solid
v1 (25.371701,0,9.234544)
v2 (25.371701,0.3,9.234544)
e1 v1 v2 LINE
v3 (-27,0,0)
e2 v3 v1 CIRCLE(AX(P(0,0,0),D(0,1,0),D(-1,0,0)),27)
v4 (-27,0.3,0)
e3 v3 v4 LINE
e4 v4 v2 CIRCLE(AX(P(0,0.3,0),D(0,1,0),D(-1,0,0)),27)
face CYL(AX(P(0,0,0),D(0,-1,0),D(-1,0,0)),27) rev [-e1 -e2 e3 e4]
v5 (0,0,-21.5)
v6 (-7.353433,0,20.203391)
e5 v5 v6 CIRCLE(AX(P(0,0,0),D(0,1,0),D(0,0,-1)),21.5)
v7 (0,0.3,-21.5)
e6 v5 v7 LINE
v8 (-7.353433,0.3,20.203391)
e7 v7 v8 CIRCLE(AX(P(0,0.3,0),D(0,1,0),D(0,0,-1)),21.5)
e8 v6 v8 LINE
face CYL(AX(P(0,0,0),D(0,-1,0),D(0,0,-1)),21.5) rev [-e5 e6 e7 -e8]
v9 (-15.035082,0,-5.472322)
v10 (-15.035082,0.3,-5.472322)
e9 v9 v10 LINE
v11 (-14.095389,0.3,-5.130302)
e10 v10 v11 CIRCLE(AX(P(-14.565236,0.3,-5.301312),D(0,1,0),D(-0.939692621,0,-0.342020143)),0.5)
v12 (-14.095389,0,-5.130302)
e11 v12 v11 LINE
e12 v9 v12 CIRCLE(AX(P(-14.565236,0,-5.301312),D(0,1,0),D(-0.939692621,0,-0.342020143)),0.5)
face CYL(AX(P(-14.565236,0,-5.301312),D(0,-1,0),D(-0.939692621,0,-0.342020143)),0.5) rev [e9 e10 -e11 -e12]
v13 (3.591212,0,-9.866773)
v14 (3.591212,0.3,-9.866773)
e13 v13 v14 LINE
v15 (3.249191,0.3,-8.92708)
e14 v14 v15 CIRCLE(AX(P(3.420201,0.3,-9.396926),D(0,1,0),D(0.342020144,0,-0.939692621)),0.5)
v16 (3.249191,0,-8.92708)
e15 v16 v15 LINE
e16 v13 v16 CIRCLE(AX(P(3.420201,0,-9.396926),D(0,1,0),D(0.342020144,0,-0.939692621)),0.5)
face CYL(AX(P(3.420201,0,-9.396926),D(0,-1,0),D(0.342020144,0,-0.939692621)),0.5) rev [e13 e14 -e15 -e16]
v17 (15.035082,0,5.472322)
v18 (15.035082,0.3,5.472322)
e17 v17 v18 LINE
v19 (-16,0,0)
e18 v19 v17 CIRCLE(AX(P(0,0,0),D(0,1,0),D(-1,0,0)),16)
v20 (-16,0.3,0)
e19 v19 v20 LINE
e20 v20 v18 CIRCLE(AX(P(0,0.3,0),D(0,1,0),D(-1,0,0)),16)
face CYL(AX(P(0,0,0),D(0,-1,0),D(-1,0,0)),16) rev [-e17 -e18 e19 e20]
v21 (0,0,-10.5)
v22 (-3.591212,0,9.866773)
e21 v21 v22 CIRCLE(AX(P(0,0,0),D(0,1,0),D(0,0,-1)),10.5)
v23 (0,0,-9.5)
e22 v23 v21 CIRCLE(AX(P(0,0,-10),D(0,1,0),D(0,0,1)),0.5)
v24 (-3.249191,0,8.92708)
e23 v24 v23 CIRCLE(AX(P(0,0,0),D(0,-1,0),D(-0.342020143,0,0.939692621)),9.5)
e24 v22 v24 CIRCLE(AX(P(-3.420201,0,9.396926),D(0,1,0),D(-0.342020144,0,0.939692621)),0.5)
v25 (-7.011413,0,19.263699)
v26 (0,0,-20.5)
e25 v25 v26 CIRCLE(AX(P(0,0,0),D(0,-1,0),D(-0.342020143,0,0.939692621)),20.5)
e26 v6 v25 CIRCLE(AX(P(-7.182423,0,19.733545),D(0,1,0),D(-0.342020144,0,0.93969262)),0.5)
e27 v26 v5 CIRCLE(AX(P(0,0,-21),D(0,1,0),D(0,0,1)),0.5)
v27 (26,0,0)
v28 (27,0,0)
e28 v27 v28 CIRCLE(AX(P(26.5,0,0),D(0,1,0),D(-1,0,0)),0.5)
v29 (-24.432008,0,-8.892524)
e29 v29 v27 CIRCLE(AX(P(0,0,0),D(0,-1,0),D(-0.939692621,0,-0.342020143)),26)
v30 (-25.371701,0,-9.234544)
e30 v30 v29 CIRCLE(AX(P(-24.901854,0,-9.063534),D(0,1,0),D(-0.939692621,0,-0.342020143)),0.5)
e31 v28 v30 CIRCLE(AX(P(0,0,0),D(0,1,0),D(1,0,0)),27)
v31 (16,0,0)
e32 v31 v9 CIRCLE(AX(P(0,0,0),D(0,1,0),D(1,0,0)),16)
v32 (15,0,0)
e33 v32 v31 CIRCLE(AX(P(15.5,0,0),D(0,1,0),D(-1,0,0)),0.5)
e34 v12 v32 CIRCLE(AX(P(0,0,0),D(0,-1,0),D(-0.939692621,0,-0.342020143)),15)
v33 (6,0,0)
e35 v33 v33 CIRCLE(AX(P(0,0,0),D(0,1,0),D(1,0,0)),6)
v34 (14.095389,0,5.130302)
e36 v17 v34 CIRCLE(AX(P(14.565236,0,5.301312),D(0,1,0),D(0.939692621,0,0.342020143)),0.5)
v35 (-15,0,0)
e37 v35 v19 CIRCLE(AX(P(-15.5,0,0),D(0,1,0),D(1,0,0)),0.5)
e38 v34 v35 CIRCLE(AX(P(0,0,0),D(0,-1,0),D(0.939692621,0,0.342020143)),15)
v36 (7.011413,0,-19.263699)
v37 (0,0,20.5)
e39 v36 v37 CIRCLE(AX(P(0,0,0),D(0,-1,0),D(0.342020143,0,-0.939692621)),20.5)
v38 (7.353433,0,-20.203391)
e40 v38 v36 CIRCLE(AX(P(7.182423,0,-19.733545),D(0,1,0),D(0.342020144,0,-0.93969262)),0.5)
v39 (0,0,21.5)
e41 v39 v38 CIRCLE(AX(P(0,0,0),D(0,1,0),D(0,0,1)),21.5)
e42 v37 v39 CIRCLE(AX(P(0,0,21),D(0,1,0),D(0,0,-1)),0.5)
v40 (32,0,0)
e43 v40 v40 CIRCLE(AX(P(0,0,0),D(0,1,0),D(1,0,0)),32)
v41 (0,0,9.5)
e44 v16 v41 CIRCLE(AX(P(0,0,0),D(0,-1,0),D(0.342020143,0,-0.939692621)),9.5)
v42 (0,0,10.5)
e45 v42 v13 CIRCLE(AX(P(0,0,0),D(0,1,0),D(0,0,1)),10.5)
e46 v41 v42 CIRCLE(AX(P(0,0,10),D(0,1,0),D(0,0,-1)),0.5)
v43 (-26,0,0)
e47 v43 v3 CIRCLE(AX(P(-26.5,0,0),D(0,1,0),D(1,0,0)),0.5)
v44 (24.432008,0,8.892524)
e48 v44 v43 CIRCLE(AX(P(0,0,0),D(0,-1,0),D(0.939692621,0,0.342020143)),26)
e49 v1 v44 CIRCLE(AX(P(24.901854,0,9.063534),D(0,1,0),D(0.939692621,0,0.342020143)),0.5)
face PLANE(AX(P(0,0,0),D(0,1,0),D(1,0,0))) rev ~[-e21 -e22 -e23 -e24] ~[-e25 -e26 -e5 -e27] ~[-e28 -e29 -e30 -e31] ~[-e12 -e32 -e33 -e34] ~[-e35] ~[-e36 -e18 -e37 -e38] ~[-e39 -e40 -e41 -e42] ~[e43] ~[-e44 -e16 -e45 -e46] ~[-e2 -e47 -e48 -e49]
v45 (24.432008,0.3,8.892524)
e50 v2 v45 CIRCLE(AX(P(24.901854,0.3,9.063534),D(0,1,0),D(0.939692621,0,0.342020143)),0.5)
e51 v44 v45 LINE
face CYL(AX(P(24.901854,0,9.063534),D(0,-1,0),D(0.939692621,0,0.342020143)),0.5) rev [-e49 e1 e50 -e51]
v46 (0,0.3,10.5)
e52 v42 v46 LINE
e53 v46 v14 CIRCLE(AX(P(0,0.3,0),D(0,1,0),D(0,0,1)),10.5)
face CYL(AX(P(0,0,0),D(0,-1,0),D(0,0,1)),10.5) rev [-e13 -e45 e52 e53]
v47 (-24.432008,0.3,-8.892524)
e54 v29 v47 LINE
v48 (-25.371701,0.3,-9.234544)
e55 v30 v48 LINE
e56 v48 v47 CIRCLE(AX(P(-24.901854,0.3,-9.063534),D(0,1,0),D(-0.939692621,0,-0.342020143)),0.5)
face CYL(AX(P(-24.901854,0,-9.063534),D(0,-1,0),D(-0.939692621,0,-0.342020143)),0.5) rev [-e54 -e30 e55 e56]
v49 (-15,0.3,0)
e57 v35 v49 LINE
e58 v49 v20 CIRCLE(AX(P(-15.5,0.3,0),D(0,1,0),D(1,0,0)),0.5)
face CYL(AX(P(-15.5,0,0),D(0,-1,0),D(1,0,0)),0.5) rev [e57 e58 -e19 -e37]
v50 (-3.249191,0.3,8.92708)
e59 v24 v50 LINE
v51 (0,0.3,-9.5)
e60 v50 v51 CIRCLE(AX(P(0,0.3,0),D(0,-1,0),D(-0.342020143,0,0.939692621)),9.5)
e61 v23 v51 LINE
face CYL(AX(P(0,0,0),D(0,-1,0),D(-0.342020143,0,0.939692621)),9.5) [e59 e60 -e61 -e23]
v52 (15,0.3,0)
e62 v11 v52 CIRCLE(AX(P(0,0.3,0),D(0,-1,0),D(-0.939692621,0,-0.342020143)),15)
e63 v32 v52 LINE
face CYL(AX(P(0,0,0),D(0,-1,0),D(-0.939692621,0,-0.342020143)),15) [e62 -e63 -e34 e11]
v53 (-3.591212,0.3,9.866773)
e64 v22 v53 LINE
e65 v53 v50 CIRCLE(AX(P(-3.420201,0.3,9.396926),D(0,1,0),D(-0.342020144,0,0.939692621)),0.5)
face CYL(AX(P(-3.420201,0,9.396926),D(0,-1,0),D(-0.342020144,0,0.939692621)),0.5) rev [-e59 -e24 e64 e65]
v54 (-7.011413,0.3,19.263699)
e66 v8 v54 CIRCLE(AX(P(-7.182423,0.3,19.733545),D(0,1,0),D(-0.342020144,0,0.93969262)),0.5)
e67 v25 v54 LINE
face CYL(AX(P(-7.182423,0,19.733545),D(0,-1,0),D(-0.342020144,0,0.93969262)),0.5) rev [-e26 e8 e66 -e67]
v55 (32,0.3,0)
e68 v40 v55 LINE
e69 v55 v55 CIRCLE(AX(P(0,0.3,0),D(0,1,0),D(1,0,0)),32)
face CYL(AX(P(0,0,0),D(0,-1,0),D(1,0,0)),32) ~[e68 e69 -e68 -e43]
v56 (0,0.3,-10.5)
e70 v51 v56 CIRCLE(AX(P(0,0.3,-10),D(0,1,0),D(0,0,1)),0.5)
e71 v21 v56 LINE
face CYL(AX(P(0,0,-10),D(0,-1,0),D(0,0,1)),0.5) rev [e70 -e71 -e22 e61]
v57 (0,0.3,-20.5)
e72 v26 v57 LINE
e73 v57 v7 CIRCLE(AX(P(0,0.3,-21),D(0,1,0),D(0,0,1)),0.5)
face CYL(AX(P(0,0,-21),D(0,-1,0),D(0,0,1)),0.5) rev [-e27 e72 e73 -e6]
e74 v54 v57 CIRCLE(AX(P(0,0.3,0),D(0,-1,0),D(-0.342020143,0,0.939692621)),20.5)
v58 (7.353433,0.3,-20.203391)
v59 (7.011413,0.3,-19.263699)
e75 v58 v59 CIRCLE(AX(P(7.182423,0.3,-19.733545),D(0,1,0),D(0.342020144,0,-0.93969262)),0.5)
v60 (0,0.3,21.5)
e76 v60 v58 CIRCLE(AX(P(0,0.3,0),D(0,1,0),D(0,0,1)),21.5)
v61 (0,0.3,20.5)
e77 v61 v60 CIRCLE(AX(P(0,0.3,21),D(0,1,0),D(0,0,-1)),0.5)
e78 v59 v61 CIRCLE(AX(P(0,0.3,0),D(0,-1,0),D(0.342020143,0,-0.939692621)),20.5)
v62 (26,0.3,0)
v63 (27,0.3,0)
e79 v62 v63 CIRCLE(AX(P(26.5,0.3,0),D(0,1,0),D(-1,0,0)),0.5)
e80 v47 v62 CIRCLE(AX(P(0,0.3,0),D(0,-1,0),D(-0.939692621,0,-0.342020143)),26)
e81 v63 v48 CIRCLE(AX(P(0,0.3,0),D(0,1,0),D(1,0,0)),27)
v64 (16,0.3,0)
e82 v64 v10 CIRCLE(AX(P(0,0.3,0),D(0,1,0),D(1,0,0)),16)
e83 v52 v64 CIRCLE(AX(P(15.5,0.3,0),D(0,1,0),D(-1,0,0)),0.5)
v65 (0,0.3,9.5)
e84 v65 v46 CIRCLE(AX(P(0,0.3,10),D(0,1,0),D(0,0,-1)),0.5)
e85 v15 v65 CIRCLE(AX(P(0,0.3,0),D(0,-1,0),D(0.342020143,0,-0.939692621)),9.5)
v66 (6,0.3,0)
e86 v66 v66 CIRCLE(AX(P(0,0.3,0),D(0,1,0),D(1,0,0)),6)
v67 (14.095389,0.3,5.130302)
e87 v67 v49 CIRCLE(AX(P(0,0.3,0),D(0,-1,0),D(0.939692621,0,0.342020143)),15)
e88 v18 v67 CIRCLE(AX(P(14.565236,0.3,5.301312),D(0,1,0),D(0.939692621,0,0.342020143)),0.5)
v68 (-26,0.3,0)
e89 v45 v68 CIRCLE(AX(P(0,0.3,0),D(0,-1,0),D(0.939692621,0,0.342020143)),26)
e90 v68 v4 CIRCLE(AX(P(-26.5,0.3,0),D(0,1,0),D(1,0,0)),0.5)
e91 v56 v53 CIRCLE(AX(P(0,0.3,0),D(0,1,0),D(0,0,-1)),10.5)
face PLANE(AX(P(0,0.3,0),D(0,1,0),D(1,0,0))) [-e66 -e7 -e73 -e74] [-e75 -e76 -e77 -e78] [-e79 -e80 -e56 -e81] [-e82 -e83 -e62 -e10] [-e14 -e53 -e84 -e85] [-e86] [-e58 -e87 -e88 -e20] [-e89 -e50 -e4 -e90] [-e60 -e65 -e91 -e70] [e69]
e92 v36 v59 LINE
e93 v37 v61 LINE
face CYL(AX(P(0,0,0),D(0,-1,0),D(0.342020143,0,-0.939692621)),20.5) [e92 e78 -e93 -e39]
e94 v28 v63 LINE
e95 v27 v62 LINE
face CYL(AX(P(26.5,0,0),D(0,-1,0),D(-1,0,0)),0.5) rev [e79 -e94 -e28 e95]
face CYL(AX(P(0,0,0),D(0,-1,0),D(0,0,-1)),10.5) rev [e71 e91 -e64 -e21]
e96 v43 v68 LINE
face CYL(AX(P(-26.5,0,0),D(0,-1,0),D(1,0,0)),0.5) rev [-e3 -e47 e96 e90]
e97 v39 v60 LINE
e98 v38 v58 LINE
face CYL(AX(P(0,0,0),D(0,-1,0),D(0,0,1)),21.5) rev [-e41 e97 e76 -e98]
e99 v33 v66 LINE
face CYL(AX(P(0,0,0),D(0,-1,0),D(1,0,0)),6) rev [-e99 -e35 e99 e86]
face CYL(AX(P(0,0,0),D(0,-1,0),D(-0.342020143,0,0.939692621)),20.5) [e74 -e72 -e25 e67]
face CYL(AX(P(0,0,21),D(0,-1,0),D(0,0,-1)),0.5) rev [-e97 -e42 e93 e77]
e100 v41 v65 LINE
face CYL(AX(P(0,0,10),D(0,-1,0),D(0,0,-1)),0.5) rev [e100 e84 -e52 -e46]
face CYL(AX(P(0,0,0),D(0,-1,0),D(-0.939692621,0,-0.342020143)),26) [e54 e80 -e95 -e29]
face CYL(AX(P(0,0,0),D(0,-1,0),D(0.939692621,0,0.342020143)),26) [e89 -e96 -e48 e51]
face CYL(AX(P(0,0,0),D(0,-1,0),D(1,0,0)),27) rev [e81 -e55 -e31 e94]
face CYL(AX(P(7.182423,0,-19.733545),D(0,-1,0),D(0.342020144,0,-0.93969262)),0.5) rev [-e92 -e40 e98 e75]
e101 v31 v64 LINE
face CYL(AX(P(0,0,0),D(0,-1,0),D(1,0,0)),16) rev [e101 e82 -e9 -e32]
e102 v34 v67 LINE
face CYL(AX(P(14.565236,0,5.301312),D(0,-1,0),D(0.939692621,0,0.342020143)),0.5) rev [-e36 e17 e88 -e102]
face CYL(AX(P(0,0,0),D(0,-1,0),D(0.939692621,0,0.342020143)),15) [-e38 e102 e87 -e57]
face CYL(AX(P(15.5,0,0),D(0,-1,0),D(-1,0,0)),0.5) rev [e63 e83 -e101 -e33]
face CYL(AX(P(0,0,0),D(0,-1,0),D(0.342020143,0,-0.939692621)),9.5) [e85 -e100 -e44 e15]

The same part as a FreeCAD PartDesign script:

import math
import FreeCAD as App
import Part
import Sketcher
from FreeCAD import Vector

doc = App.newDocument("Part")
body = doc.addObject("PartDesign::Body", "Body")

# Sketch on XZ plane
sketch1 = body.newObject("Sketcher::SketchObject", "Sketch")
sketch1.AttachmentSupport = (doc.getObject("XZ_Plane"), [""])
sketch1.MapMode = "FlatFace"
sketch1.addGeometry([
    Part.Circle(Vector(0, 0, 0), Vector(0, 0, 1), 32),  # 0
    Part.ArcOfCircle(Part.Circle(Vector(0, 0, 0), Vector(0, 0, 1), 27), math.radians(20), math.radians(180)),  # 1
    Part.ArcOfCircle(Part.Circle(Vector(-26.5, 0, 0), Vector(0, 0, 1), 0.5), math.radians(180), math.radians(360)),  # 2
    Part.ArcOfCircle(Part.Circle(Vector(0, 0, 0), Vector(0, 0, 1), 26), math.radians(20), math.radians(180)),  # 3
    Part.ArcOfCircle(Part.Circle(Vector(24.9, 9.1, 0), Vector(0, 0, 1), 0.5), math.radians(-160), math.radians(20)),  # 4
    Part.ArcOfCircle(Part.Circle(Vector(0, 0, 0), Vector(0, 0, 1), 16), math.radians(20), math.radians(180)),  # 5
    Part.ArcOfCircle(Part.Circle(Vector(-15.5, 0, 0), Vector(0, 0, 1), 0.5), math.radians(180), math.radians(360)),  # 6
    Part.ArcOfCircle(Part.Circle(Vector(0, 0, 0), Vector(0, 0, 1), 15), math.radians(20), math.radians(180)),  # 7
    Part.ArcOfCircle(Part.Circle(Vector(14.6, 5.3, 0), Vector(0, 0, 1), 0.5), math.radians(-160), math.radians(20)),  # 8
    Part.Circle(Vector(0, 0, 0), Vector(0, 0, 1), 6),  # 9
    Part.ArcOfCircle(Part.Circle(Vector(0, 0, 0), Vector(0, 0, 1), 10.5), math.radians(-70), math.radians(90)),  # 10
    Part.ArcOfCircle(Part.Circle(Vector(0, 10, 0), Vector(0, 0, 1), 0.5), math.radians(90), math.radians(270)),  # 11
    Part.ArcOfCircle(Part.Circle(Vector(0, 0, 0), Vector(0, 0, 1), 9.5), math.radians(-70), math.radians(90)),  # 12
    Part.ArcOfCircle(Part.Circle(Vector(3.4, -9.4, 0), Vector(0, 0, 1), 0.5), math.radians(110), math.radians(290)),  # 13
    Part.ArcOfCircle(Part.Circle(Vector(0, 0, 0), Vector(0, 0, 1), 21.5), math.radians(-70), math.radians(90)),  # 14
    Part.ArcOfCircle(Part.Circle(Vector(0, 21, 0), Vector(0, 0, 1), 0.5), math.radians(90), math.radians(270)),  # 15
    Part.ArcOfCircle(Part.Circle(Vector(0, 0, 0), Vector(0, 0, 1), 20.5), math.radians(-70), math.radians(90)),  # 16
    Part.ArcOfCircle(Part.Circle(Vector(7.2, -19.7, 0), Vector(0, 0, 1), 0.5), math.radians(110), math.radians(290)),  # 17
    Part.ArcOfCircle(Part.Circle(Vector(0, 0, 0), Vector(0, 0, 1), 21.5), math.radians(110), math.radians(270)),  # 18
    Part.ArcOfCircle(Part.Circle(Vector(0, -21, 0), Vector(0, 0, 1), 0.5), math.radians(-90), math.radians(90)),  # 19
    Part.ArcOfCircle(Part.Circle(Vector(0, 0, 0), Vector(0, 0, 1), 20.5), math.radians(110), math.radians(270)),  # 20
    Part.ArcOfCircle(Part.Circle(Vector(-7.2, 19.7, 0), Vector(0, 0, 1), 0.5), math.radians(-70), math.radians(110)),  # 21
    Part.ArcOfCircle(Part.Circle(Vector(0, 0, 0), Vector(0, 0, 1), 10.5), math.radians(110), math.radians(270)),  # 22
    Part.ArcOfCircle(Part.Circle(Vector(0, -10, 0), Vector(0, 0, 1), 0.5), math.radians(-90), math.radians(90)),  # 23
    Part.ArcOfCircle(Part.Circle(Vector(0, 0, 0), Vector(0, 0, 1), 9.5), math.radians(110), math.radians(270)),  # 24
    Part.ArcOfCircle(Part.Circle(Vector(-3.4, 9.4, 0), Vector(0, 0, 1), 0.5), math.radians(-70), math.radians(110)),  # 25
    Part.ArcOfCircle(Part.Circle(Vector(0, 0, 0), Vector(0, 0, 1), 16), math.radians(-160), math.radians(0)),  # 26
    Part.ArcOfCircle(Part.Circle(Vector(15.5, 0, 0), Vector(0, 0, 1), 0.5), math.radians(0), math.radians(180)),  # 27
    Part.ArcOfCircle(Part.Circle(Vector(0, 0, 0), Vector(0, 0, 1), 15), math.radians(-160), math.radians(0)),  # 28
    Part.ArcOfCircle(Part.Circle(Vector(-14.6, -5.3, 0), Vector(0, 0, 1), 0.5), math.radians(20), math.radians(200)),  # 29
    Part.ArcOfCircle(Part.Circle(Vector(0, 0, 0), Vector(0, 0, 1), 27), math.radians(-160), math.radians(0)),  # 30
    Part.ArcOfCircle(Part.Circle(Vector(26.5, 0, 0), Vector(0, 0, 1), 0.5), math.radians(0), math.radians(180)),  # 31
    Part.ArcOfCircle(Part.Circle(Vector(0, 0, 0), Vector(0, 0, 1), 26), math.radians(-160), math.radians(0)),  # 32
    Part.ArcOfCircle(Part.Circle(Vector(-24.9, -9.1, 0), Vector(0, 0, 1), 0.5), math.radians(20), math.radians(200)),  # 33
], False)
sketch1.addConstraint([
    Sketcher.Constraint("Tangent", 1, 2, 2, 1),
    Sketcher.Constraint("Tangent", 2, 2, 3, 2),
    Sketcher.Constraint("Tangent", 3, 1, 4, 1),
    Sketcher.Constraint("Tangent", 4, 2, 1, 1),
    Sketcher.Constraint("Tangent", 5, 2, 6, 1),
    Sketcher.Constraint("Tangent", 6, 2, 7, 2),
    Sketcher.Constraint("Tangent", 7, 1, 8, 1),
    Sketcher.Constraint("Tangent", 8, 2, 5, 1),
    Sketcher.Constraint("Tangent", 10, 2, 11, 1),
    Sketcher.Constraint("Tangent", 11, 2, 12, 2),
    Sketcher.Constraint("Tangent", 12, 1, 13, 1),
    Sketcher.Constraint("Tangent", 13, 2, 10, 1),
    Sketcher.Constraint("Tangent", 14, 2, 15, 1),
    Sketcher.Constraint("Tangent", 15, 2, 16, 2),
    Sketcher.Constraint("Tangent", 16, 1, 17, 1),
    Sketcher.Constraint("Tangent", 17, 2, 14, 1),
    Sketcher.Constraint("Tangent", 18, 2, 19, 1),
    Sketcher.Constraint("Tangent", 19, 2, 20, 2),
    Sketcher.Constraint("Tangent", 20, 1, 21, 1),
    Sketcher.Constraint("Tangent", 21, 2, 18, 1),
    Sketcher.Constraint("Tangent", 22, 2, 23, 1),
    Sketcher.Constraint("Tangent", 23, 2, 24, 2),
    Sketcher.Constraint("Tangent", 24, 1, 25, 1),
    Sketcher.Constraint("Tangent", 25, 2, 22, 1),
    Sketcher.Constraint("Tangent", 26, 2, 27, 1),
    Sketcher.Constraint("Tangent", 27, 2, 28, 2),
    Sketcher.Constraint("Tangent", 28, 1, 29, 1),
    Sketcher.Constraint("Tangent", 29, 2, 26, 1),
    Sketcher.Constraint("Tangent", 30, 2, 31, 1),
    Sketcher.Constraint("Tangent", 31, 2, 32, 2),
    Sketcher.Constraint("Tangent", 32, 1, 33, 1),
    Sketcher.Constraint("Tangent", 33, 2, 30, 1),
    Sketcher.Constraint("Coincident", 0, 3, -1, 1),
    Sketcher.Constraint("Coincident", 1, 3, -1, 1),
    Sketcher.Constraint("Coincident", 3, 3, -1, 1),
    Sketcher.Constraint("Coincident", 5, 3, -1, 1),
    Sketcher.Constraint("Coincident", 7, 3, -1, 1),
    Sketcher.Constraint("Coincident", 9, 3, -1, 1),
    Sketcher.Constraint("Coincident", 10, 3, -1, 1),
    Sketcher.Constraint("Coincident", 12, 3, -1, 1),
    Sketcher.Constraint("Coincident", 14, 3, -1, 1),
    Sketcher.Constraint("Coincident", 16, 3, -1, 1),
    Sketcher.Constraint("Coincident", 18, 3, -1, 1),
    Sketcher.Constraint("Coincident", 20, 3, -1, 1),
    Sketcher.Constraint("Coincident", 22, 3, -1, 1),
    Sketcher.Constraint("Coincident", 24, 3, -1, 1),
    Sketcher.Constraint("Coincident", 26, 3, -1, 1),
    Sketcher.Constraint("Coincident", 28, 3, -1, 1),
    Sketcher.Constraint("Coincident", 30, 3, -1, 1),
    Sketcher.Constraint("Coincident", 32, 3, -1, 1),
    Sketcher.Constraint("Equal", 4, 6),
    Sketcher.Constraint("Equal", 8, 11),
    Sketcher.Constraint("Equal", 13, 15),
    Sketcher.Constraint("Equal", 14, 18),
    Sketcher.Constraint("Equal", 17, 19),
    Sketcher.Constraint("Equal", 10, 22),
    Sketcher.Constraint("Equal", 21, 23),
    Sketcher.Constraint("Equal", 5, 26),
    Sketcher.Constraint("Equal", 25, 27),
    Sketcher.Constraint("Equal", 1, 30),
    Sketcher.Constraint("Equal", 29, 31),
    Sketcher.Constraint("PointOnObject", 2, 3, -1),
    Sketcher.Constraint("PointOnObject", 6, 3, -1),
    Sketcher.Constraint("PointOnObject", 11, 3, -2),
    Sketcher.Constraint("PointOnObject", 15, 3, -2),
    Sketcher.Constraint("PointOnObject", 19, 3, -2),
    Sketcher.Constraint("PointOnObject", 23, 3, -2),
    Sketcher.Constraint("PointOnObject", 27, 3, -1),
    Sketcher.Constraint("PointOnObject", 31, 3, -1),
    Sketcher.Constraint("Diameter", 0, 64.0),
    Sketcher.Constraint("Diameter", 9, 12.0),
    Sketcher.Constraint("Radius", 1, 27.0),
    Sketcher.Constraint("Radius", 3, 26.0),
    Sketcher.Constraint("Radius", 5, 16.0),
    Sketcher.Constraint("Radius", 10, 10.5),
    Sketcher.Constraint("Radius", 14, 21.5),
    Sketcher.Constraint("DistanceX", -1, 1, 13, 3, 3.420201),
    Sketcher.Constraint("DistanceX", 25, 3, -1, 1, 3.420201),
    Sketcher.Constraint("DistanceX", -1, 1, 4, 2, 25.371701),
    Sketcher.Constraint("DistanceY", 16, 1, -1, 1, 19.263699),
    Sketcher.Constraint("DistanceY", -1, 1, 20, 1, 19.263699),
    Sketcher.Constraint("DistanceX", 33, 2, -1, 1, 25.371701),
    Sketcher.Constraint("DistanceX", -1, 1, 7, 1, 14.095389),
    Sketcher.Constraint("DistanceX", 28, 1, -1, 1, 14.095389),
])
pad1 = body.newObject("PartDesign::Pad", "Pad")
pad1.Profile = sketch1
pad1.Length = 0.3
pad1.Reversed = True

doc.recompute()
